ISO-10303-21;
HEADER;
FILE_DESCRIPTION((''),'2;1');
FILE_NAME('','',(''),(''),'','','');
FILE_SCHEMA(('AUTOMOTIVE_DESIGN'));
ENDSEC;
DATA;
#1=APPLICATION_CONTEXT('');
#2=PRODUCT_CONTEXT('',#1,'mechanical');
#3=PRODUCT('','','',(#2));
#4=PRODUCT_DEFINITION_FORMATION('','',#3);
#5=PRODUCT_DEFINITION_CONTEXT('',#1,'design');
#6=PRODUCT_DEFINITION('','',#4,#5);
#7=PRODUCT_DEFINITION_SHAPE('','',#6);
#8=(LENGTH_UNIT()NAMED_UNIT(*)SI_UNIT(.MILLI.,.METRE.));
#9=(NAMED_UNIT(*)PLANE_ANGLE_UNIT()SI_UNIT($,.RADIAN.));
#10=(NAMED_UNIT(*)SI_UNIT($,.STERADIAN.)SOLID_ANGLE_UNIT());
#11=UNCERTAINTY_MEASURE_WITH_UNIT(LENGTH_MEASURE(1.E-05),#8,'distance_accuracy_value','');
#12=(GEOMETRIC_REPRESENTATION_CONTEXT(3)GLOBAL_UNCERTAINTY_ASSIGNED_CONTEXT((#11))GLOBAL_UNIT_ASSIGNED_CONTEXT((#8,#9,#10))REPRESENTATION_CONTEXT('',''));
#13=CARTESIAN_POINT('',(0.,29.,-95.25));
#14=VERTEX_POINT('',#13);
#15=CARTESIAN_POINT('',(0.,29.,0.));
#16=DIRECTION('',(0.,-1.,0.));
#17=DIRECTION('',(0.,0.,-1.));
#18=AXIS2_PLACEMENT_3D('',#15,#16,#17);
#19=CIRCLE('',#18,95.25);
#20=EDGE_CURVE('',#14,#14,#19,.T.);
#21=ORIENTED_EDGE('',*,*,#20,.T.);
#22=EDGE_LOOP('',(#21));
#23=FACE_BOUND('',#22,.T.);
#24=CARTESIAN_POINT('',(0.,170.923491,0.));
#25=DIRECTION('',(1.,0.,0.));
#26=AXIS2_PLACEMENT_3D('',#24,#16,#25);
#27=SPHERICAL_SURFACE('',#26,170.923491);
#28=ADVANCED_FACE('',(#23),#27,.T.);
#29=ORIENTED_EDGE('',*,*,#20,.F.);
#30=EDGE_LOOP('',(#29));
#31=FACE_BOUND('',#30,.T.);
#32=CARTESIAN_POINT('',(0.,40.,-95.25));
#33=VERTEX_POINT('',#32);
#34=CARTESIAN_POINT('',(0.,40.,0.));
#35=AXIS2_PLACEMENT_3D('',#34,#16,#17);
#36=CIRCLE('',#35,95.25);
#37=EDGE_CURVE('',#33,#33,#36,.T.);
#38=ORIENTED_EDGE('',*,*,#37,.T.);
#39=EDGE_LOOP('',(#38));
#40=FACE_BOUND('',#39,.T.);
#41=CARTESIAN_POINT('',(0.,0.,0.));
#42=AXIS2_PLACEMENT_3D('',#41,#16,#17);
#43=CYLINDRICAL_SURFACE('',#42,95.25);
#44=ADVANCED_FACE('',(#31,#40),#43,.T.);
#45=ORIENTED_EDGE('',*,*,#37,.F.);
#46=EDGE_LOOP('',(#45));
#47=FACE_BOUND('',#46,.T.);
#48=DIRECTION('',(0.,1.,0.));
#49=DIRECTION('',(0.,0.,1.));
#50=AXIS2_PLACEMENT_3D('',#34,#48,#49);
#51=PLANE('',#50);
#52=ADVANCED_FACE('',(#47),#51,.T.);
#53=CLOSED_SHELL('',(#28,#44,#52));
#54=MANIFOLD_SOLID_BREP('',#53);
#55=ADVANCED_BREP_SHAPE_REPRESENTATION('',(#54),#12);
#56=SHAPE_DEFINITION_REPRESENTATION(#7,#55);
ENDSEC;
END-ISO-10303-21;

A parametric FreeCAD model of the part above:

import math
import FreeCAD as App
import Part
import Sketcher

V = App.Vector
Q = App.Units.Quantity

doc = App.newDocument("Part")
body = doc.addObject("PartDesign::Body", "Body")

# Sketch on XY plane
sketch1 = body.newObject("Sketcher::SketchObject", "Sketch")
sketch1.AttachmentSupport = (doc.getObject("XY_Plane"), [""])
sketch1.MapMode = "FlatFace"
sketch1.addGeometry(Part.LineSegment(V(0, 40, 0), V(0, 0, 0)), False)
sketch1.addGeometry(Part.ArcOfCircle(Part.Circle(V(0, 171, 0), V(0, 0, 1), 171), math.radians(-90), math.radians(-56)), False)
sketch1.addGeometry(Part.LineSegment(V(95, 29, 0), V(95, 40, 0)), False)
sketch1.addGeometry(Part.LineSegment(V(95, 40, 0), V(0, 40, 0)), False)
sketch1.addConstraint(Sketcher.Constraint("Coincident", 0, 2, 1, 1))
sketch1.addConstraint(Sketcher.Constraint("Coincident", 1, 2, 2, 1))
sketch1.addConstraint(Sketcher.Constraint("Coincident", 2, 2, 3, 1))
sketch1.addConstraint(Sketcher.Constraint("Coincident", 3, 2, 0, 1))
sketch1.addConstraint(Sketcher.Constraint("Vertical", 0))
sketch1.addConstraint(Sketcher.Constraint("Vertical", 2))
sketch1.addConstraint(Sketcher.Constraint("Horizontal", 3))
sketch1.addConstraint(Sketcher.Constraint("Coincident", 0, 2, -1, 1))
sketch1.addConstraint(Sketcher.Constraint("PointOnObject", 1, 3, -2))
sketch1.addConstraint(Sketcher.Constraint("DistanceY", 0, 2, 0, 1, Q("40 mm")))
sketch1.addConstraint(Sketcher.Constraint("DistanceY", 2, 1, 2, 2, Q("11 mm")))
sketch1.addConstraint(Sketcher.Constraint("DistanceX", 3, 2, 3, 1, Q("95.25 mm")))
revolution = body.newObject("PartDesign::Revolution", "Revolution")
revolution.Profile = sketch1
revolution.ReferenceAxis = (sketch1, ["V_Axis"])
revolution.Angle = 360

doc.recompute()
